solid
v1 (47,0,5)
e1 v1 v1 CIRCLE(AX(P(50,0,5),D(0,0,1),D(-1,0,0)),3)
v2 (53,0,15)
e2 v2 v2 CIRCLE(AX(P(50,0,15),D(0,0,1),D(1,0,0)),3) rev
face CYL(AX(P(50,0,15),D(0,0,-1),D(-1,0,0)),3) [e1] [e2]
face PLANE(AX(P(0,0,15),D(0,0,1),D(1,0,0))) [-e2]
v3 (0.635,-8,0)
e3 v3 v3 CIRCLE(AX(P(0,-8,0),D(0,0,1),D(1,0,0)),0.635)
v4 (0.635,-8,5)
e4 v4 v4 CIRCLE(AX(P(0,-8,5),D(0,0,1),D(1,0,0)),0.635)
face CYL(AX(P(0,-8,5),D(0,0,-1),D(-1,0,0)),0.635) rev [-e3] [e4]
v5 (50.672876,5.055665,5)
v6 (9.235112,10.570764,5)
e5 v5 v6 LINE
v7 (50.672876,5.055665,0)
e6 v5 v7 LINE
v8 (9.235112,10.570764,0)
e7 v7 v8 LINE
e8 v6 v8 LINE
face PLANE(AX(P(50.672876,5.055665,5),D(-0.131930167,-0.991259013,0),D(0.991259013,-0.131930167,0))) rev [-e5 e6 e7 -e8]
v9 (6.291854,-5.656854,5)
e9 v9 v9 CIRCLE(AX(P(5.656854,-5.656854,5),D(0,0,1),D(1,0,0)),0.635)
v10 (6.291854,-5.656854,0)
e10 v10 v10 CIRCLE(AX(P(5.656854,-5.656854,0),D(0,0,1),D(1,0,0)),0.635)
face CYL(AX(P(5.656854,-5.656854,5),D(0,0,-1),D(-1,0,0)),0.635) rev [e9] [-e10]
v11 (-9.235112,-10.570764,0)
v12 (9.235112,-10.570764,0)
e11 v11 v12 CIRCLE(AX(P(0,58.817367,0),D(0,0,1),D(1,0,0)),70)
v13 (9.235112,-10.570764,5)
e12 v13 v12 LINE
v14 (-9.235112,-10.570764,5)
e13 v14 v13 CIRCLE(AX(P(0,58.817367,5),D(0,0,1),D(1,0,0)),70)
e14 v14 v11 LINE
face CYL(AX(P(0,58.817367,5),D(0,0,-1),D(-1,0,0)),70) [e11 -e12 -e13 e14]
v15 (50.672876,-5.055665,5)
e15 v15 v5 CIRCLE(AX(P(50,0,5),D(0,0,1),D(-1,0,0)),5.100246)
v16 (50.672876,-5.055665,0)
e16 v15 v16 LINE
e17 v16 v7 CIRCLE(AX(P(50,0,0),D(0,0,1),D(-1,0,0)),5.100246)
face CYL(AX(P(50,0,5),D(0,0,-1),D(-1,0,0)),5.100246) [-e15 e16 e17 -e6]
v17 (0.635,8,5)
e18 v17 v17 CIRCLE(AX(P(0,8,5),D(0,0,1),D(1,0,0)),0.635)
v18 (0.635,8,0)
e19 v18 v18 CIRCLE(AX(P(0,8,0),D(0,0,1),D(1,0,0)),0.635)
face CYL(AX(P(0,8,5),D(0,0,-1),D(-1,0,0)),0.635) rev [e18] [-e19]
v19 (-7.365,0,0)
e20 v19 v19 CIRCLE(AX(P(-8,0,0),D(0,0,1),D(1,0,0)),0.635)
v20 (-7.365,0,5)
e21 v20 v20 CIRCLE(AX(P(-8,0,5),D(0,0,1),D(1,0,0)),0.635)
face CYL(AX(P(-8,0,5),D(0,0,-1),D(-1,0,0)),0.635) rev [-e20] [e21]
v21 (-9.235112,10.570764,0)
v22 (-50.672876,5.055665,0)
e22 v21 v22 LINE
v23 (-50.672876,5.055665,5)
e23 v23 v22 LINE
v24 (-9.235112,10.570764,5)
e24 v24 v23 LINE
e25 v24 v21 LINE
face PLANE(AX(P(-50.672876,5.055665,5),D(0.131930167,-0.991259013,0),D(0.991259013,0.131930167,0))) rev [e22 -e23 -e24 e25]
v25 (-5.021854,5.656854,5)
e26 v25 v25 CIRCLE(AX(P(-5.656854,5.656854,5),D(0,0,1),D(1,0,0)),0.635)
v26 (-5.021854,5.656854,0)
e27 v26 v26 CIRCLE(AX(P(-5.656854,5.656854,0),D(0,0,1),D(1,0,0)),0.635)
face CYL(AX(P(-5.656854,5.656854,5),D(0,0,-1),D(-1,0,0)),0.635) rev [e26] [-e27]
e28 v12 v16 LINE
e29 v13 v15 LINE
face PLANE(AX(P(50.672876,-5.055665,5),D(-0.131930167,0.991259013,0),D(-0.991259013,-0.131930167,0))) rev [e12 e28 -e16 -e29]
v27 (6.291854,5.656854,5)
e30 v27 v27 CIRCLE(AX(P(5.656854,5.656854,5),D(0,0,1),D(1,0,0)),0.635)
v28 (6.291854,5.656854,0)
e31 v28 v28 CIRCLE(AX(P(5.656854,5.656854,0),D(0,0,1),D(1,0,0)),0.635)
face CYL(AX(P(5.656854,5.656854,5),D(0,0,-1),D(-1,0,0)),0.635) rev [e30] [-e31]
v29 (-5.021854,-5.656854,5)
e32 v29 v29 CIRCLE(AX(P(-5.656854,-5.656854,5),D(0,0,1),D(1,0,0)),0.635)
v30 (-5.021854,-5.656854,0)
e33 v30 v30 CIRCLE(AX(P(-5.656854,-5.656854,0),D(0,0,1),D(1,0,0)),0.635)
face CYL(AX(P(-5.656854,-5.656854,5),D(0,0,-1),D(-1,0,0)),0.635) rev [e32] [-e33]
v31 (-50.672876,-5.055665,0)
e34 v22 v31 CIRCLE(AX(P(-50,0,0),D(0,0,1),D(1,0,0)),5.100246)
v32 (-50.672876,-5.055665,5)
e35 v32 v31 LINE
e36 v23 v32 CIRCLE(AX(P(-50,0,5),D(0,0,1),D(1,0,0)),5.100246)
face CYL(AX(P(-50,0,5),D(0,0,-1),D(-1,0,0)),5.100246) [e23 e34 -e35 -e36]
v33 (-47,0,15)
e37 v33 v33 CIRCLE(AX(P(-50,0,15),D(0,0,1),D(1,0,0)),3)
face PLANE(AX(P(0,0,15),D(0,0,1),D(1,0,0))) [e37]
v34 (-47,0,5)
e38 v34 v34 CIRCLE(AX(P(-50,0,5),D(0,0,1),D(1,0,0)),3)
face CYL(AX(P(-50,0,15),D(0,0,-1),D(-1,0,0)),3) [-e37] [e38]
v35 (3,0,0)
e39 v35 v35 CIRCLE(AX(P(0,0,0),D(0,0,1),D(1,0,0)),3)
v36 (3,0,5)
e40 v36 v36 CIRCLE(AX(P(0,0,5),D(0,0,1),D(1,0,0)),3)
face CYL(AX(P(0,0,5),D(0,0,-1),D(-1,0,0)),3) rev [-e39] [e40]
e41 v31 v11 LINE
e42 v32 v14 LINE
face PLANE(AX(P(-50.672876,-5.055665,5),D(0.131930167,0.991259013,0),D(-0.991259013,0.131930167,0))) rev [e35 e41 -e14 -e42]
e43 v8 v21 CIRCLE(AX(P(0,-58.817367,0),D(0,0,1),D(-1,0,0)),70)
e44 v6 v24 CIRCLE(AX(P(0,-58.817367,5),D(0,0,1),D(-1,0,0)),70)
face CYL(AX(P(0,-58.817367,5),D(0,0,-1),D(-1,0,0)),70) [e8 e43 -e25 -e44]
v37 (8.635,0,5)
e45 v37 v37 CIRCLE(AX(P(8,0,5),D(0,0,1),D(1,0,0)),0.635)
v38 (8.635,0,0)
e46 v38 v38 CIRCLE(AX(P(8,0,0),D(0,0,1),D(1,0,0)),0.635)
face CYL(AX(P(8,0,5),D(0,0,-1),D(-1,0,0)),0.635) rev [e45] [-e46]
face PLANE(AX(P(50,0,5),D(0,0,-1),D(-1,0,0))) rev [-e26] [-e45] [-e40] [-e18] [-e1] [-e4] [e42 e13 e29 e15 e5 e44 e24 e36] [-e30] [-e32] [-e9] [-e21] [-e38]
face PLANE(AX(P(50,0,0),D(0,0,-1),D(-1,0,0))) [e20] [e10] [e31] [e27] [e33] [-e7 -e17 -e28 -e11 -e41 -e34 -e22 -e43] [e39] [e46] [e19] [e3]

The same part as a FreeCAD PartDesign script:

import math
import FreeCAD as App
import Part
import Sketcher
from FreeCAD import Vector

doc = App.newDocument("Part")
params = doc.addObject("Spreadsheet::Sheet", "Params")
for row, (alias, value) in enumerate([
    ("sketch1_diameter", "6 mm"),
    ("sketch1_radius", "70 mm"),
    ("sketch1_diameter2", "1.27 mm"),
    ("pad1_length", "5 mm"),
    ("sketch2_diameter", "6 mm"),
    ("pad2_length", "15 mm"),
], start=1):
    params.set(f"A{row}", alias)
    params.set(f"B{row}", "=" + value)
    params.setAlias(f"B{row}", alias)

body = doc.addObject("PartDesign::Body", "Body")

sketch1 = body.newObject("Sketcher::SketchObject", "Sketch")
sketch1.AttachmentSupport = (doc.getObject("XY_Plane"), [""])
sketch1.MapMode = "FlatFace"
sketch1.addGeometry([
    Part.LineSegment(Vector(-9.2, 10.6, 0), Vector(-50.7, 5.1, 0)),
    Part.ArcOfCircle(Part.Circle(Vector(-50, 0, 0), Vector(0, 0, 1), 5.1), math.radians(98), math.radians(262)),
    Part.LineSegment(Vector(-50.7, -5.1, 0), Vector(-9.2, -10.6, 0)),
    Part.ArcOfCircle(Part.Circle(Vector(0, 58.8, 0), Vector(0, 0, 1), 70), math.radians(-97.58), math.radians(-82.42)),
    Part.LineSegment(Vector(9.2, -10.6, 0), Vector(50.7, -5.1, 0)),
    Part.ArcOfCircle(Part.Circle(Vector(50, 0, 0), Vector(0, 0, 1), 5.1), math.radians(-82), math.radians(82)),
    Part.LineSegment(Vector(50.7, 5.1, 0), Vector(9.2, 10.6, 0)),
    Part.ArcOfCircle(Part.Circle(Vector(0, -58.8, 0), Vector(0, 0, 1), 70), math.radians(82.42), math.radians(97.58)),
    Part.Circle(Vector(5.7, -5.7, 0), Vector(0, 0, 1), 0.6),
    Part.Circle(Vector(0, -8, 0), Vector(0, 0, 1), 0.6),
    Part.Circle(Vector(-5.7, -5.7, 0), Vector(0, 0, 1), 0.6),
    Part.Circle(Vector(50, 0, 0), Vector(0, 0, 1), 3),
    Part.Circle(Vector(8, 0, 0), Vector(0, 0, 1), 0.6),
    Part.Circle(Vector(5.7, 5.7, 0), Vector(0, 0, 1), 0.6),
    Part.Circle(Vector(0, 0, 0), Vector(0, 0, 1), 3),
    Part.Circle(Vector(-8, 0, 0), Vector(0, 0, 1), 0.6),
    Part.Circle(Vector(-50, 0, 0), Vector(0, 0, 1), 3),
    Part.Circle(Vector(-5.7, 5.7, 0), Vector(0, 0, 1), 0.6),
    Part.Circle(Vector(0, 8, 0), Vector(0, 0, 1), 0.6),
], False)
sketch1.addConstraint([
    Sketcher.Constraint("Tangent", 0, 2, 1, 1),
    Sketcher.Constraint("Tangent", 1, 2, 2, 1),
    Sketcher.Constraint("Tangent", 2, 2, 3, 1),
    Sketcher.Constraint("Tangent", 3, 2, 4, 1),
    Sketcher.Constraint("Tangent", 4, 2, 5, 1),
    Sketcher.Constraint("Tangent", 5, 2, 6, 1),
    Sketcher.Constraint("Tangent", 6, 2, 7, 1),
    Sketcher.Constraint("Tangent", 7, 2, 0, 1),
    Sketcher.Constraint("Coincident", 14, 3, -1, 1),
    Sketcher.Constraint("Coincident", 11, 3, 5, 3),
    Sketcher.Constraint("Coincident", 16, 3, 1, 3),
    Sketcher.Constraint("Equal", 1, 5),
    Sketcher.Constraint("Equal", 3, 7),
    Sketcher.Constraint("Equal", 8, 9),
    Sketcher.Constraint("Equal", 9, 10),
    Sketcher.Constraint("Equal", 10, 12),
    Sketcher.Constraint("Equal", 12, 13),
    Sketcher.Constraint("Equal", 11, 14),
    Sketcher.Constraint("Equal", 13, 15),
    Sketcher.Constraint("Equal", 14, 16),
    Sketcher.Constraint("Equal", 15, 17),
    Sketcher.Constraint("Equal", 17, 18),
    Sketcher.Constraint("Symmetric", 1, 3, 5, 3, -1, 1),
    Sketcher.Constraint("Symmetric", 3, 3, 7, 3, -1, 1),
    Sketcher.Constraint("Symmetric", 10, 3, 13, 3, -1, 1),
    Sketcher.Constraint("Symmetric", 12, 3, 15, 3, -1, 1),
    Sketcher.Constraint("Symmetric", 8, 3, 17, 3, -1, 1),
    Sketcher.Constraint("Symmetric", 9, 3, 18, 3, -1, 1),
    Sketcher.Constraint("Symmetric", 8, 3, 10, 3, -2),
    Sketcher.Constraint("Symmetric", 2, 2, 3, 2, -2),
    Sketcher.Constraint("PointOnObject", 9, 3, -2),
    Sketcher.Constraint("PointOnObject", 12, 3, -1),
    Sketcher.Constraint("Diameter", 11, 6.0),
    Sketcher.Constraint("Radius", 3, 70.0),
    Sketcher.Constraint("Diameter", 8, 1.27),
    Sketcher.Constraint("DistanceX", 1, 3, -1, 1, 50.0),
    Sketcher.Constraint("DistanceY", 9, 3, -1, 1, 8.0),
    Sketcher.Constraint("DistanceX", -1, 1, 12, 3, 8.0),
    Sketcher.Constraint("Radius", 1, 5.100246),
    Sketcher.Constraint("DistanceY", 3, 2, 4, 2, 5.515099),
    Sketcher.Constraint("DistanceY", 8, 3, 3, 3, 64.474221),
    Sketcher.Constraint("DistanceX", 10, 3, 8, 3, 11.313708),
])
sketch1.setExpression("Constraints[32]", "Params.sketch1_diameter")
sketch1.setExpression("Constraints[33]", "Params.sketch1_radius")
sketch1.setExpression("Constraints[34]", "Params.sketch1_diameter2")
pad1 = body.newObject("PartDesign::Pad", "Pad")
pad1.Profile = sketch1
pad1.setExpression("Length", "Params.pad1_length")

sketch2 = body.newObject("Sketcher::SketchObject", "Sketch001")
sketch2.AttachmentSupport = (doc.getObject("XY_Plane"), [""])
sketch2.MapMode = "FlatFace"
sketch2.addGeometry([
    Part.Circle(Vector(-50, 0, 0), Vector(0, 0, 1), 3),
    Part.Circle(Vector(50, 0, 0), Vector(0, 0, 1), 3),
], False)
sketch2.addConstraint([
    Sketcher.Constraint("Equal", 0, 1),
    Sketcher.Constraint("Symmetric", 0, 3, 1, 3, -1, 1),
    Sketcher.Constraint("PointOnObject", 0, 3, -1),
    Sketcher.Constraint("Diameter", 0, 6.0),
    Sketcher.Constraint("DistanceX", 0, 3, -1, 1, 50.0),
])
sketch2.setExpression("Constraints[3]", "Params.sketch2_diameter")
pad2 = body.newObject("PartDesign::Pad", "Pad001")
pad2.Profile = sketch2
pad2.setExpression("Length", "Params.pad2_length")

doc.recompute()
